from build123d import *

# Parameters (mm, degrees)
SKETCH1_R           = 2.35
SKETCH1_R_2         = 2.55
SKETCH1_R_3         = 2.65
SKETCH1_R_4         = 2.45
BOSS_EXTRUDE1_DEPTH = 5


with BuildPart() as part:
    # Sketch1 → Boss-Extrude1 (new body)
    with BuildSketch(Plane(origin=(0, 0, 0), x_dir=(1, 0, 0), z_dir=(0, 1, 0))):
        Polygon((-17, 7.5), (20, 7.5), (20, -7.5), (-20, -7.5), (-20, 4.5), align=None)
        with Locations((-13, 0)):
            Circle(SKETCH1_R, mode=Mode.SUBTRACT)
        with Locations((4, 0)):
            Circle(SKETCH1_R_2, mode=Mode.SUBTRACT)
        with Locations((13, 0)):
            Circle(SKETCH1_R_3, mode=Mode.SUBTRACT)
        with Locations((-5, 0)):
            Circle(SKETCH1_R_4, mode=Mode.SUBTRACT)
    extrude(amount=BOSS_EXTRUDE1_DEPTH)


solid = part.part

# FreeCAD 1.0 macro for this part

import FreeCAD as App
import Part
import Sketcher
from FreeCAD import Vector

doc = App.newDocument("Part")
body = doc.addObject("PartDesign::Body", "Body")

# Sketch on XZ plane
sketch1 = doc.addObject("Sketcher::SketchObject", "Sketch")
body.addObject(sketch1)
sketch1.AttachmentSupport = (doc.XZ_Plane, [""])
sketch1.MapMode = "FlatFace"
sketch1.addGeometry(Part.LineSegment(Vector(20, -7.5, 0), Vector(-17, -7.5, 0)), False)
sketch1.addGeometry(Part.LineSegment(Vector(-17, -7.5, 0), Vector(-20, -4.5, 0)), False)
sketch1.addGeometry(Part.LineSegment(Vector(-20, -4.5, 0), Vector(-20, 7.5, 0)), False)
sketch1.addGeometry(Part.LineSegment(Vector(-20, 7.5, 0), Vector(20, 7.5, 0)), False)
sketch1.addGeometry(Part.LineSegment(Vector(20, 7.5, 0), Vector(20, -7.5, 0)), False)
sketch1.addGeometry(Part.Circle(Vector(13, 0, 0), Vector(0, 0, 1), 2.6), False)
sketch1.addGeometry(Part.Circle(Vector(4, 0, 0), Vector(0, 0, 1), 2.5), False)
sketch1.addGeometry(Part.Circle(Vector(-5, 0, 0), Vector(0, 0, 1), 2.5), False)
sketch1.addGeometry(Part.Circle(Vector(-13, 0, 0), Vector(0, 0, 1), 2.4), False)
sketch1.addConstraint(Sketcher.Constraint("Coincident", 0, 2, 1, 1))
sketch1.addConstraint(Sketcher.Constraint("Coincident", 1, 2, 2, 1))
sketch1.addConstraint(Sketcher.Constraint("Coincident", 2, 2, 3, 1))
sketch1.addConstraint(Sketcher.Constraint("Coincident", 3, 2, 4, 1))
sketch1.addConstraint(Sketcher.Constraint("Coincident", 4, 2, 0, 1))
sketch1.addConstraint(Sketcher.Constraint("Horizontal", 0))
sketch1.addConstraint(Sketcher.Constraint("Vertical", 2))
sketch1.addConstraint(Sketcher.Constraint("Horizontal", 3))
sketch1.addConstraint(Sketcher.Constraint("Vertical", 4))
sketch1.addConstraint(Sketcher.Constraint("Symmetric", 5, 3, 8, 3, -1, 1))
sketch1.addConstraint(Sketcher.Constraint("Symmetric", 2, 2, 4, 2, -1, 1))
sketch1.addConstraint(Sketcher.Constraint("PointOnObject", 5, 3, -1))
sketch1.addConstraint(Sketcher.Constraint("PointOnObject", 6, 3, -1))
sketch1.addConstraint(Sketcher.Constraint("PointOnObject", 7, 3, -1))
sketch1.addConstraint(Sketcher.Constraint("Diameter", 5, 5.3))
sketch1.addConstraint(Sketcher.Constraint("Diameter", 6, 5.1))
sketch1.addConstraint(Sketcher.Constraint("Diameter", 7, 4.9))
sketch1.addConstraint(Sketcher.Constraint("Diameter", 8, 4.7))
sketch1.addConstraint(Sketcher.Constraint("DistanceX", 0, 2, 0, 1, 37.0))
sketch1.addConstraint(Sketcher.Constraint("DistanceX", 3, 1, 3, 2, 40.0))
sketch1.addConstraint(Sketcher.Constraint("DistanceY", 2, 1, 2, 2, 12.0))
sketch1.addConstraint(Sketcher.Constraint("DistanceY", 4, 2, 4, 1, 15.0))
sketch1.addConstraint(Sketcher.Constraint("DistanceX", -1, 1, 5, 3, 13.0))
sketch1.addConstraint(Sketcher.Constraint("DistanceX", -1, 1, 6, 3, 4.0))
sketch1.addConstraint(Sketcher.Constraint("DistanceX", 7, 3, -1, 1, 5.0))
pad1 = doc.addObject("PartDesign::Pad", "Pad")
body.addObject(pad1)
pad1.Profile = sketch1
pad1.Length = 5
pad1.Reversed = True

doc.recompute()
